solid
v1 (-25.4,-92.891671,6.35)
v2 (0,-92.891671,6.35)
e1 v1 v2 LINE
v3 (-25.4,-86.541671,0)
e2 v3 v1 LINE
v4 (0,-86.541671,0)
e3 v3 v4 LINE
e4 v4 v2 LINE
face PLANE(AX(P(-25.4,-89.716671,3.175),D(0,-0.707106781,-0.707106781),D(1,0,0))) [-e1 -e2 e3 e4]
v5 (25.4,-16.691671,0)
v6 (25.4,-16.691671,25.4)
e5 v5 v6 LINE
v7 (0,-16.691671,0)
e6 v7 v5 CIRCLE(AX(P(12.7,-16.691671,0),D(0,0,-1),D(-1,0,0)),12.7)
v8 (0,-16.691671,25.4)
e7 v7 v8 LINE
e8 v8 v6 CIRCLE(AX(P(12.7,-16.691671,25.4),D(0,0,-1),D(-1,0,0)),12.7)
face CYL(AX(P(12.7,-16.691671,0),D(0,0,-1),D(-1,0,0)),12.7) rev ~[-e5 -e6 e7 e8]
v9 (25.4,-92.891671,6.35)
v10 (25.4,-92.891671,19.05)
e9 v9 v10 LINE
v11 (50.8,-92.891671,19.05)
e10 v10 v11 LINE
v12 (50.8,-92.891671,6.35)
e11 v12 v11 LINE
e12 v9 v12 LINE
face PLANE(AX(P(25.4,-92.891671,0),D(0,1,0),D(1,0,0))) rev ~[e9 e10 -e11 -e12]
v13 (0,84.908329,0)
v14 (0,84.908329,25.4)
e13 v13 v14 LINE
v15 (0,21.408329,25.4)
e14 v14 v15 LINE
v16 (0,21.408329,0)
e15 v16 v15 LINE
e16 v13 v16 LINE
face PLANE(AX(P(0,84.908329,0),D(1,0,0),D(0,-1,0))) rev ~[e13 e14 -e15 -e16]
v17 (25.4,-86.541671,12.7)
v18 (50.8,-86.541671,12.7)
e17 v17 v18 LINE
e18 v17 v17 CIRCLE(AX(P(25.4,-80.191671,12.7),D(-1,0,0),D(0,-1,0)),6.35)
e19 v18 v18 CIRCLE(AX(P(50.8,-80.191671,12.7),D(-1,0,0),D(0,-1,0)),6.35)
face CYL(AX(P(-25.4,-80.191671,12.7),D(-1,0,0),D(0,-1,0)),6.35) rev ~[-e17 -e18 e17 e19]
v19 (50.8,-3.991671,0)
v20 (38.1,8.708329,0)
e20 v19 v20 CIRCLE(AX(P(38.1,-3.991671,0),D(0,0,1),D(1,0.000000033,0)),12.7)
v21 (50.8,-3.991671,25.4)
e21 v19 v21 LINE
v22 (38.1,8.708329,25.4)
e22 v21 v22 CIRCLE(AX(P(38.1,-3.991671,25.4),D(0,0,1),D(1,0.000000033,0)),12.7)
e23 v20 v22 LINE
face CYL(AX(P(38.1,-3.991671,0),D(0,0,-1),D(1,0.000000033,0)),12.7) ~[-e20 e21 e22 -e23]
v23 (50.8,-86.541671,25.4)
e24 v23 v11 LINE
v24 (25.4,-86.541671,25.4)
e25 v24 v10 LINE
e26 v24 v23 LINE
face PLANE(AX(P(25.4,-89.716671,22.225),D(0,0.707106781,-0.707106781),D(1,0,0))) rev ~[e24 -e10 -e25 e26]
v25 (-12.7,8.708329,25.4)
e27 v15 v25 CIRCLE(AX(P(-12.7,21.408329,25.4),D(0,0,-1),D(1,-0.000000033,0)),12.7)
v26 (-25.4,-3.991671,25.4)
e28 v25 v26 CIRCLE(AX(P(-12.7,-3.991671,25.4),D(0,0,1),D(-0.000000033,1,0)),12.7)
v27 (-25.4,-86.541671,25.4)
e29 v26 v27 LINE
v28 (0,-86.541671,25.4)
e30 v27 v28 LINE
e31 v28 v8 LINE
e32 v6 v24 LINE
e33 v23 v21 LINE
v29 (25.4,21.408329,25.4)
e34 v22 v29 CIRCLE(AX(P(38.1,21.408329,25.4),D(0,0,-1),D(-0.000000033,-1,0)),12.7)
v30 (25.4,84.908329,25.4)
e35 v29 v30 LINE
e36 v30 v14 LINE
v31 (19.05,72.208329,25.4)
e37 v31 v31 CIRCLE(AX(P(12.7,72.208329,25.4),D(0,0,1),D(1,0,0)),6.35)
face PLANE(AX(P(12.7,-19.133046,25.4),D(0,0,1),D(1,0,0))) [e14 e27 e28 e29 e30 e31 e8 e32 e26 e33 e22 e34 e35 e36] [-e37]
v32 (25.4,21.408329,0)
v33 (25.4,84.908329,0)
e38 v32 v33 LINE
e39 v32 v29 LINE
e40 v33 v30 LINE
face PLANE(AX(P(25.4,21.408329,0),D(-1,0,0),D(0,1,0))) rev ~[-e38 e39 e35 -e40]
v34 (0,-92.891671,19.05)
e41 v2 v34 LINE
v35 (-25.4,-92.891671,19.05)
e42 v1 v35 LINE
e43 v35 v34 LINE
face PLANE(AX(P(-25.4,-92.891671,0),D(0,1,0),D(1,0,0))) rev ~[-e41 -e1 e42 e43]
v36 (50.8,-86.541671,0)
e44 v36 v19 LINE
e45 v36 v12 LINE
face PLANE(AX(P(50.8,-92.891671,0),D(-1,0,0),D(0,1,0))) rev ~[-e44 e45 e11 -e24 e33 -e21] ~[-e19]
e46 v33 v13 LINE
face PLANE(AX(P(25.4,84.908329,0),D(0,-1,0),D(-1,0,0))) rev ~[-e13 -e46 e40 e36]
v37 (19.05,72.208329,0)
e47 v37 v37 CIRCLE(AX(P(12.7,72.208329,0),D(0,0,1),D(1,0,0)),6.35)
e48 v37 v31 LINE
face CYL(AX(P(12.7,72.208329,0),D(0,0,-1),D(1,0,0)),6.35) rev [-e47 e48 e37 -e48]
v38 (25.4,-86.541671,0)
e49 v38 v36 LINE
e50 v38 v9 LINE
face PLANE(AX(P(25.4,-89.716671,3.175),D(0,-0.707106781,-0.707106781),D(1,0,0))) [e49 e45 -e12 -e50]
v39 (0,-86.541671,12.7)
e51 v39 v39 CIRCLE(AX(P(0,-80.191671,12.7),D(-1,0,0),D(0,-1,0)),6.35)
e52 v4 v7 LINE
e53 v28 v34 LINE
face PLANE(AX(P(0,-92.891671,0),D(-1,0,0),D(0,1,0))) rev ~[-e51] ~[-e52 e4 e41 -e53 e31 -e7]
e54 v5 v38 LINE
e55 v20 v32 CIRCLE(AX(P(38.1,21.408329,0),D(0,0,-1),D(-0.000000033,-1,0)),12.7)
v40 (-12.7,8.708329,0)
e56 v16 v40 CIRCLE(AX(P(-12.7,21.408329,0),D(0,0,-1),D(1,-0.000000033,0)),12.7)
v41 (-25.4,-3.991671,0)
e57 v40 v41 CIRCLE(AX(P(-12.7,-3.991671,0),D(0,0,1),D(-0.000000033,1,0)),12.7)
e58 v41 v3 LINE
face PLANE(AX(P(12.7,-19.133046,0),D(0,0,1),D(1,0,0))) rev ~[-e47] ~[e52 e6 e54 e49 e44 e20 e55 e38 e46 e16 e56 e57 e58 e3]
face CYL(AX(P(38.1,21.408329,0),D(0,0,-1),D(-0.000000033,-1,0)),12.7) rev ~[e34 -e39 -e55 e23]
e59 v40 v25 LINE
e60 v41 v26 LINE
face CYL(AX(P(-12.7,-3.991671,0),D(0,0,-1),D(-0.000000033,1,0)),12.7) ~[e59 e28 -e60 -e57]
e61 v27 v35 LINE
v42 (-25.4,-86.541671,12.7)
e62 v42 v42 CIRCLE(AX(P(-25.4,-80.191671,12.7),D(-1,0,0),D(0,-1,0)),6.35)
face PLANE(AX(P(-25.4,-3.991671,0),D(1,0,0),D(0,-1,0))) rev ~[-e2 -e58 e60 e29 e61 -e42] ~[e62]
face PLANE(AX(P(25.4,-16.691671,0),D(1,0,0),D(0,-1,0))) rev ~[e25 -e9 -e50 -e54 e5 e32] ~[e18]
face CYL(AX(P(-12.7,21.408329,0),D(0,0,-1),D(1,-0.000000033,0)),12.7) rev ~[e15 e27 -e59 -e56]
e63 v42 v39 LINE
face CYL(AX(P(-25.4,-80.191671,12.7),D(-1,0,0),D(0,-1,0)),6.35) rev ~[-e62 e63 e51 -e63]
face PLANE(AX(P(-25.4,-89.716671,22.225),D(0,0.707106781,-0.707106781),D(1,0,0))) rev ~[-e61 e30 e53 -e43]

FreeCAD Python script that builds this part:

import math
import FreeCAD as App
import Part
import Sketcher
Q = App.Units.Quantity


def edges_at(feature, points):
    """Names of the edges that pass closest to the given points."""
    edges = feature.Shape.Edges
    near = lambda p: min(range(len(edges)), key=lambda i: edges[i].distToShape(Part.Vertex(*p))[0])
    return sorted({f"Edge{near(p) + 1}" for p in points})

doc = App.newDocument("Part")
params = doc.addObject("Spreadsheet::Sheet", "Params")
for row, (alias, value) in enumerate([
    ("sketch1_diameter", "0.5 in"),
    ("sketch1_radius", "0.5 in"),
    ("sketch1_height", "3 in"),
    ("sketch1_height2", "2.5 in"),
    ("sketch1_height3", "3.5 in"),
    ("pad1_length", "1 in"),
    ("sketch2_diameter", "0.5 in"),
    ("pocket1_length", "3 in"),
    ("chamfer_size", "0.25 in"),
], start=1):
    params.set(f"A{row}", alias)
    params.set(f"B{row}", "=" + value)
    params.setAlias(f"B{row}", alias)

body = doc.addObject("PartDesign::Body", "Body")

# Sketch on XY plane
sketch1 = body.newObject("Sketcher::SketchObject", "Sketch")
sketch1.AttachmentSupport = (doc.getObject("XY_Plane"), [""])
sketch1.MapMode = "FlatFace"
sketch1.addGeometry([
    Part.LineSegment(App.Vector(25, 85, 0), App.Vector(0, 85, 0)),  # 0
    Part.LineSegment(App.Vector(0, 85, 0), App.Vector(0, 21, 0)),  # 1
    Part.ArcOfCircle(Part.Circle(App.Vector(-13, 21, 0), App.Vector(0, 0, 1), 13), math.radians(-90), math.radians(0)),  # 2
    Part.ArcOfCircle(Part.Circle(App.Vector(-13, -4, 0), App.Vector(0, 0, 1), 13), math.radians(90), math.radians(180)),  # 3
    Part.LineSegment(App.Vector(-25, -4, 0), App.Vector(-25, -93, 0)),  # 4
    Part.LineSegment(App.Vector(-25, -93, 0), App.Vector(0, -93, 0)),  # 5
    Part.LineSegment(App.Vector(0, -93, 0), App.Vector(0, -17, 0)),  # 6
    Part.ArcOfCircle(Part.Circle(App.Vector(13, -17, 0), App.Vector(0, 0, 1), 13), math.radians(0), math.radians(180)),  # 7
    Part.LineSegment(App.Vector(25, -17, 0), App.Vector(25, -93, 0)),  # 8
    Part.LineSegment(App.Vector(25, -93, 0), App.Vector(51, -93, 0)),  # 9
    Part.LineSegment(App.Vector(51, -93, 0), App.Vector(51, -4, 0)),  # 10
    Part.ArcOfCircle(Part.Circle(App.Vector(38, -4, 0), App.Vector(0, 0, 1), 13), math.radians(0), math.radians(90)),  # 11
    Part.ArcOfCircle(Part.Circle(App.Vector(38, 21, 0), App.Vector(0, 0, 1), 13), math.radians(-180), math.radians(-90)),  # 12
    Part.LineSegment(App.Vector(25, 21, 0), App.Vector(25, 85, 0)),  # 13
    Part.Circle(App.Vector(13, 72, 0), App.Vector(0, 0, 1), 6),  # 14
], False)
sketch1.addConstraint([
    Sketcher.Constraint("Coincident", 0, 2, 1, 1),
    Sketcher.Constraint("Tangent", 1, 2, 2, 2),
    Sketcher.Constraint("Tangent", 2, 1, 3, 1),
    Sketcher.Constraint("Tangent", 3, 2, 4, 1),
    Sketcher.Constraint("Coincident", 4, 2, 5, 1),
    Sketcher.Constraint("Coincident", 5, 2, 6, 1),
    Sketcher.Constraint("Tangent", 6, 2, 7, 2),
    Sketcher.Constraint("Tangent", 7, 1, 8, 1),
    Sketcher.Constraint("Coincident", 8, 2, 9, 1),
    Sketcher.Constraint("Coincident", 9, 2, 10, 1),
    Sketcher.Constraint("Tangent", 10, 2, 11, 1),
    Sketcher.Constraint("Tangent", 11, 2, 12, 2),
    Sketcher.Constraint("Tangent", 12, 1, 13, 1),
    Sketcher.Constraint("Coincident", 13, 2, 0, 1),
    Sketcher.Constraint("Horizontal", 0),
    Sketcher.Constraint("Vertical", 1),
    Sketcher.Constraint("Vertical", 4),
    Sketcher.Constraint("Horizontal", 5),
    Sketcher.Constraint("Vertical", 6),
    Sketcher.Constraint("Vertical", 8),
    Sketcher.Constraint("Horizontal", 9),
    Sketcher.Constraint("Vertical", 10),
    Sketcher.Constraint("Vertical", 13),
    Sketcher.Constraint("Equal", 2, 3),
    Sketcher.Constraint("Equal", 3, 7),
    Sketcher.Constraint("Equal", 7, 11),
    Sketcher.Constraint("Equal", 11, 12),
    Sketcher.Constraint("Symmetric", 4, 2, 8, 2, -2),
    Sketcher.Constraint("PointOnObject", 0, 2, -2),
    Sketcher.Constraint("PointOnObject", 5, 2, -2),
    Sketcher.Constraint("Horizontal", 3, 3, 11, 3),
    Sketcher.Constraint("Vertical", 11, 3, 12, 3),
    Sketcher.Constraint("Vertical", 7, 3, 14, 3),
    Sketcher.Constraint("Vertical", 8, 2, 12, 1),
    Sketcher.Constraint("Diameter", 14, Q("0.5 in")),
    Sketcher.Constraint("Radius", 2, Q("0.5 in")),
    Sketcher.Constraint("DistanceY", 6, 1, 6, 2, Q("3 in")),
    Sketcher.Constraint("DistanceY", 1, 2, 1, 1, Q("2.5 in")),
    Sketcher.Constraint("DistanceY", 4, 2, 4, 1, Q("3.5 in")),
    Sketcher.Constraint("DistanceY", 12, 3, 14, 3, Q("2 in")),
    Sketcher.Constraint("DistanceY", -1, 1, 2, 3, 21.408329),
])
sketch1.setExpression("Constraints[34]", "Params.sketch1_diameter")
sketch1.setExpression("Constraints[35]", "Params.sketch1_radius")
sketch1.setExpression("Constraints[36]", "Params.sketch1_height")
sketch1.setExpression("Constraints[37]", "Params.sketch1_height2")
sketch1.setExpression("Constraints[38]", "Params.sketch1_height3")
pad1 = body.newObject("PartDesign::Pad", "Pad")
pad1.Profile = sketch1
pad1.setExpression("Length", "Params.pad1_length")

# Sketch on YZ plane
sketch2 = body.newObject("Sketcher::SketchObject", "Sketch001")
sketch2.AttachmentSupport = (doc.getObject("YZ_Plane"), [""])
sketch2.MapMode = "FlatFace"
sketch2.AttachmentOffset = App.Placement(App.Vector(0, 0, -1 * 25.4), App.Rotation())
sketch2.addGeometry(Part.Circle(App.Vector(-80, 13, 0), App.Vector(0, 0, 1), 6), False)
sketch2.addConstraint([
    Sketcher.Constraint("Diameter", 0, Q("0.5 in")),
    Sketcher.Constraint("DistanceY", -1, 1, 0, 3, Q("0.5 in")),
    Sketcher.Constraint("DistanceX", 0, 3, -1, 1, 80.191671),
])
sketch2.setExpression("Constraints[0]", "Params.sketch2_diameter")
pocket1 = body.newObject("PartDesign::Pocket", "Pocket")
pocket1.Profile = sketch2
pocket1.setExpression("Length", "Params.pocket1_length")
pocket1.Reversed = True
doc.recompute()

chamfer = body.newObject("PartDesign::Chamfer", "Chamfer")
chamfer.Base = (pocket1, edges_at(pocket1, [
    (-12.7, -92.892, 25.4),
    (-12.7, -92.892, 0),
    (38.1, -92.892, 25.4),
    (38.1, -92.892, 0),
]))
chamfer.setExpression("Size", "Params.chamfer_size")

doc.recompute()
